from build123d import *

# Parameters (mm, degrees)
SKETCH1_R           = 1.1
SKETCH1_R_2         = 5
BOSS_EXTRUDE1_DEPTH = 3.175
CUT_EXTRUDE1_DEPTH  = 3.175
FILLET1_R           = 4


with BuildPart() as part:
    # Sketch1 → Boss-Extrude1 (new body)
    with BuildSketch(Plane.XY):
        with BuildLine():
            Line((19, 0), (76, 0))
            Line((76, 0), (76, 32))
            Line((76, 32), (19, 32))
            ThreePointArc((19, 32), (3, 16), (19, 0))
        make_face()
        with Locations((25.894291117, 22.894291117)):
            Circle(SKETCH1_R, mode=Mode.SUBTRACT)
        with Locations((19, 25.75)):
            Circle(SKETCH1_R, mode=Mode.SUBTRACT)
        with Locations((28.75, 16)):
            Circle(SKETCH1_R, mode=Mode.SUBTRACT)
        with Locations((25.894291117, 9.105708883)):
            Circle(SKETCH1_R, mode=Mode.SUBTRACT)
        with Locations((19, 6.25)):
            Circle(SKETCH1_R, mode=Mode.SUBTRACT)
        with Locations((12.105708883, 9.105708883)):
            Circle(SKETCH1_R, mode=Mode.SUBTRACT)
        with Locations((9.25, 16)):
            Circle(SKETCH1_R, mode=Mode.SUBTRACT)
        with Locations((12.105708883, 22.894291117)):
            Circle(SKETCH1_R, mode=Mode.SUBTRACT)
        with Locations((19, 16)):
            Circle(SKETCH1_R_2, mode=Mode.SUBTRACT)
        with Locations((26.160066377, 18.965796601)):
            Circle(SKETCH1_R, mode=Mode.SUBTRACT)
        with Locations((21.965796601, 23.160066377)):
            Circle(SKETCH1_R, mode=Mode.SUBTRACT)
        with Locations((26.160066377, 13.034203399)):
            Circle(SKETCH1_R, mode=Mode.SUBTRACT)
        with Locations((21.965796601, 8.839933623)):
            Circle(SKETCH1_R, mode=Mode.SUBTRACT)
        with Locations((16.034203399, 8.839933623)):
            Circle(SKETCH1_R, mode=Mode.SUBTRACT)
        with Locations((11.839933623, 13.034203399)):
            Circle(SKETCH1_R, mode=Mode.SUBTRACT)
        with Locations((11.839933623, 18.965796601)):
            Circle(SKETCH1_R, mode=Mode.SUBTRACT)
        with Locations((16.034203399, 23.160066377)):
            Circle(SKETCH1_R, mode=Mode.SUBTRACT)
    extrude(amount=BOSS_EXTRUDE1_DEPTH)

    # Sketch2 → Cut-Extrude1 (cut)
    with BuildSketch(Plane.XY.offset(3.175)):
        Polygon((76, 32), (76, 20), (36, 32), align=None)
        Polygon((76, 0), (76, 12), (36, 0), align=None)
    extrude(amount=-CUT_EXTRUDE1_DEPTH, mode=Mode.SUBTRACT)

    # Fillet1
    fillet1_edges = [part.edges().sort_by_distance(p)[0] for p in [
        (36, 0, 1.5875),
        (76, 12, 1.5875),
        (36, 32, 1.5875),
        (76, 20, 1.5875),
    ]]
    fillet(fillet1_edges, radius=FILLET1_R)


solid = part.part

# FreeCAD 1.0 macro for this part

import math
import FreeCAD as App
import Part
import Sketcher

V = App.Vector


def edges_at(feature, points):
    """Names of the edges that pass closest to the given points."""
    edges = feature.Shape.Edges
    near = lambda p: min(range(len(edges)), key=lambda i: edges[i].distToShape(Part.Vertex(*p))[0])
    return sorted({f"Edge{near(p) + 1}" for p in points})


def add_polygon(sketch, points):
    """Adds a closed chain of lines whose ends are joined by coincident constraints."""
    first, n = sketch.GeometryCount, len(points)
    for a, b in zip(points, points[1:] + points[:1]):
        sketch.addGeometry(Part.LineSegment(App.Vector(*a, 0), App.Vector(*b, 0)), False)
    for i in range(n):
        sketch.addConstraint(Sketcher.Constraint("Coincident", first + i, 2, first + (i + 1) % n, 1))

doc = App.newDocument("Part")
params = doc.addObject("Spreadsheet::Sheet", "Params")
for row, (alias, value) in enumerate([
    ("sketch1_diameter", "10 mm"),
    ("sketch1_radius", "16 mm"),
    ("sketch1_diameter2", "2.2 mm"),
    ("sketch1_width", "57 mm"),
    ("pad1_length", "3.175 mm"),
    ("sketch2_width", "40 mm"),
    ("sketch2_height", "12 mm"),
    ("pocket1_length", "3.175 mm"),
    ("fillet_radius", "4 mm"),
], start=1):
    params.set(f"A{row}", alias)
    params.set(f"B{row}", "=" + value)
    params.setAlias(f"B{row}", alias)

body = doc.addObject("PartDesign::Body", "Body")

sketch1 = doc.addObject("Sketcher::SketchObject", "Sketch")
body.addObject(sketch1)
sketch1.AttachmentSupport = (doc.XY_Plane, [""])
sketch1.MapMode = "FlatFace"
sketch1.addGeometry([
    Part.LineSegment(V(19, 0, 0), V(76, 0, 0)),
    Part.LineSegment(V(76, 0, 0), V(76, 32, 0)),
    Part.LineSegment(V(76, 32, 0), V(19, 32, 0)),
    Part.ArcOfCircle(Part.Circle(V(19, 16, 0), V(0, 0, 1), 16), math.radians(90), math.radians(270)),
    Part.Circle(V(12.1, 9.1, 0), V(0, 0, 1), 1.1),
    Part.Circle(V(16, 8.8, 0), V(0, 0, 1), 1.1),
    Part.Circle(V(11.8, 13, 0), V(0, 0, 1), 1.1),
    Part.Circle(V(19, 6.2, 0), V(0, 0, 1), 1.1),
    Part.Circle(V(22, 8.8, 0), V(0, 0, 1), 1.1),
    Part.Circle(V(25.9, 9.1, 0), V(0, 0, 1), 1.1),
    Part.Circle(V(26.2, 13, 0), V(0, 0, 1), 1.1),
    Part.Circle(V(9.2, 16, 0), V(0, 0, 1), 1.1),
    Part.Circle(V(11.8, 19, 0), V(0, 0, 1), 1.1),
    Part.Circle(V(12.1, 22.9, 0), V(0, 0, 1), 1.1),
    Part.Circle(V(16, 23.2, 0), V(0, 0, 1), 1.1),
    Part.Circle(V(19, 16, 0), V(0, 0, 1), 5),
    Part.Circle(V(28.8, 16, 0), V(0, 0, 1), 1.1),
    Part.Circle(V(26.2, 19, 0), V(0, 0, 1), 1.1),
    Part.Circle(V(22, 23.2, 0), V(0, 0, 1), 1.1),
    Part.Circle(V(19, 25.8, 0), V(0, 0, 1), 1.1),
    Part.Circle(V(25.9, 22.9, 0), V(0, 0, 1), 1.1),
], False)
sketch1.addConstraint([
    Sketcher.Constraint("Coincident", 0, 2, 1, 1),
    Sketcher.Constraint("Coincident", 1, 2, 2, 1),
    Sketcher.Constraint("Tangent", 2, 2, 3, 1),
    Sketcher.Constraint("Tangent", 3, 2, 0, 1),
    Sketcher.Constraint("Horizontal", 0),
    Sketcher.Constraint("Vertical", 1),
    Sketcher.Constraint("Horizontal", 2),
    Sketcher.Constraint("Coincident", 15, 3, 3, 3),
    Sketcher.Constraint("Equal", 4, 5),
    Sketcher.Constraint("Equal", 5, 6),
    Sketcher.Constraint("Equal", 6, 7),
    Sketcher.Constraint("Equal", 7, 8),
    Sketcher.Constraint("Equal", 8, 9),
    Sketcher.Constraint("Equal", 9, 10),
    Sketcher.Constraint("Equal", 10, 11),
    Sketcher.Constraint("Equal", 11, 12),
    Sketcher.Constraint("Equal", 12, 13),
    Sketcher.Constraint("Equal", 13, 14),
    Sketcher.Constraint("Equal", 14, 16),
    Sketcher.Constraint("Equal", 16, 17),
    Sketcher.Constraint("Equal", 17, 18),
    Sketcher.Constraint("Equal", 18, 19),
    Sketcher.Constraint("Equal", 19, 20),
    Sketcher.Constraint("PointOnObject", 0, 2, -1),
    Sketcher.Constraint("Horizontal", 5, 3, 8, 3),
    Sketcher.Constraint("Horizontal", 4, 3, 9, 3),
    Sketcher.Constraint("Horizontal", 6, 3, 10, 3),
    Sketcher.Constraint("Horizontal", 3, 3, 11, 3),
    Sketcher.Constraint("Horizontal", 15, 3, 16, 3),
    Sketcher.Constraint("Horizontal", 12, 3, 17, 3),
    Sketcher.Constraint("Horizontal", 14, 3, 18, 3),
    Sketcher.Constraint("Horizontal", 13, 3, 20, 3),
    Sketcher.Constraint("Vertical", 3, 3, 7, 3),
    Sketcher.Constraint("Vertical", 6, 3, 12, 3),
    Sketcher.Constraint("Vertical", 4, 3, 13, 3),
    Sketcher.Constraint("Vertical", 5, 3, 14, 3),
    Sketcher.Constraint("Vertical", 10, 3, 17, 3),
    Sketcher.Constraint("Vertical", 8, 3, 18, 3),
    Sketcher.Constraint("Vertical", 15, 3, 19, 3),
    Sketcher.Constraint("Vertical", 9, 3, 20, 3),
    Sketcher.Constraint("Diameter", 15, 10.0),
    Sketcher.Constraint("Radius", 3, 16.0),
    Sketcher.Constraint("Diameter", 4, 2.2),
    Sketcher.Constraint("DistanceX", 0, 1, 0, 2, 57.0),
    Sketcher.Constraint("DistanceX", -1, 1, 3, 3, 19.0),
    Sketcher.Constraint("DistanceY", -1, 1, 7, 3, 6.25),
    Sketcher.Constraint("DistanceX", -1, 1, 11, 3, 9.25),
    Sketcher.Constraint("DistanceX", -1, 1, 16, 3, 28.75),
    Sketcher.Constraint("DistanceY", -1, 1, 19, 3, 25.75),
    Sketcher.Constraint("DistanceX", -1, 1, 4, 3, 12.105709),
    Sketcher.Constraint("DistanceY", -1, 1, 4, 3, 9.105709),
    Sketcher.Constraint("DistanceX", -1, 1, 9, 3, 25.894291),
    Sketcher.Constraint("DistanceY", -1, 1, 13, 3, 22.894291),
    Sketcher.Constraint("DistanceX", 6, 3, 5, 3, 4.19427),
    Sketcher.Constraint("DistanceY", 5, 3, 6, 3, 4.19427),
    Sketcher.Constraint("DistanceX", 8, 3, 10, 3, 4.19427),
    Sketcher.Constraint("DistanceY", 12, 3, 14, 3, 4.19427),
    Sketcher.Constraint("DistanceX", -1, 1, 5, 3, 16.034203),
    Sketcher.Constraint("DistanceY", -1, 1, 5, 3, 8.839934),
    Sketcher.Constraint("DistanceX", -1, 1, 8, 3, 21.965797),
    Sketcher.Constraint("DistanceY", -1, 1, 12, 3, 18.965797),
])
sketch1.setExpression("Constraints[40]", "Params.sketch1_diameter")
sketch1.setExpression("Constraints[41]", "Params.sketch1_radius")
sketch1.setExpression("Constraints[42]", "Params.sketch1_diameter2")
sketch1.setExpression("Constraints[43]", "Params.sketch1_width")
pad1 = doc.addObject("PartDesign::Pad", "Pad")
body.addObject(pad1)
pad1.Profile = sketch1
pad1.setExpression("Length", "Params.pad1_length")

sketch2 = doc.addObject("Sketcher::SketchObject", "Sketch001")
body.addObject(sketch2)
sketch2.AttachmentSupport = (doc.XY_Plane, [""])
sketch2.MapMode = "FlatFace"
sketch2.AttachmentOffset = App.Placement(V(0, 0, 3.175), App.Rotation())
add_polygon(sketch2, [(76, 20), (76, 32), (36, 32)])
add_polygon(sketch2, [(76, 0), (76, 12), (36, 0)])
sketch2.addConstraint([
    Sketcher.Constraint("Vertical", 0),
    Sketcher.Constraint("Horizontal", 1),
    Sketcher.Constraint("Vertical", 3),
    Sketcher.Constraint("Horizontal", 5),
    Sketcher.Constraint("PointOnObject", 4, 2, -1),
    Sketcher.Constraint("Vertical", 2, 2, 3, 2),
    Sketcher.Constraint("Vertical", 1, 2, 4, 2),
    Sketcher.Constraint("Equal", 0, 3),
    Sketcher.Constraint("DistanceX", 1, 2, 1, 1, 40.0),
    Sketcher.Constraint("DistanceY", 0, 1, 0, 2, 12.0),
    Sketcher.Constraint("DistanceX", -1, 1, 0, 2, 76.0),
    Sketcher.Constraint("DistanceY", -1, 1, 0, 2, 32.0),
])
sketch2.setExpression("Constraints[14]", "Params.sketch2_width")
sketch2.setExpression("Constraints[15]", "Params.sketch2_height")
pocket1 = doc.addObject("PartDesign::Pocket", "Pocket")
body.addObject(pocket1)
pocket1.Profile = sketch2
pocket1.setExpression("Length", "Params.pocket1_length")
doc.recompute()

fillet = doc.addObject("PartDesign::Fillet", "Fillet")
body.addObject(fillet)
fillet.Base = (pocket1, edges_at(pocket1, [
    (36, 0, 1.587),
    (76, 12, 1.587),
    (36, 32, 1.587),
    (76, 20, 1.587),
]))
fillet.setExpression("Radius", "Params.fillet_radius")

doc.recompute()
